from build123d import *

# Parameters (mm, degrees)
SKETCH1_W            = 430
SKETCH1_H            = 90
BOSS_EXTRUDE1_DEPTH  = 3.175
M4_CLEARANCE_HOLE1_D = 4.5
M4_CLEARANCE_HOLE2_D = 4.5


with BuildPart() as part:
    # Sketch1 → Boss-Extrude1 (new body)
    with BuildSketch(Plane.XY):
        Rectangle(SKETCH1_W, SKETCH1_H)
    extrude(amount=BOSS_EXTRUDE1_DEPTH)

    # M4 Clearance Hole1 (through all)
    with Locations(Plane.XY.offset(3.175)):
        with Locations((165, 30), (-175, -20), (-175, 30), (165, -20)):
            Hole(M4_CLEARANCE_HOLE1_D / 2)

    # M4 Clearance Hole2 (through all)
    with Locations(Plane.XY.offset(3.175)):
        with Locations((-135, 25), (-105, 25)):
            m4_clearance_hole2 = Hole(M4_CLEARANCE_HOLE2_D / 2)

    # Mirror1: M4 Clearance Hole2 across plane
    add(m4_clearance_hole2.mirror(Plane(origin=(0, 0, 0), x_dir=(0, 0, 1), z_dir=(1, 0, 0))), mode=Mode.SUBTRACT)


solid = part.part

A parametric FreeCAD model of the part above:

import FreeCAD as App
import Part
import Sketcher
from FreeCAD import Vector


def add_polygon(sketch, points):
    """Adds a closed chain of lines whose ends are joined by coincident constraints."""
    first, n = sketch.GeometryCount, len(points)
    for a, b in zip(points, points[1:] + points[:1]):
        sketch.addGeometry(Part.LineSegment(App.Vector(*a, 0), App.Vector(*b, 0)), False)
    for i in range(n):
        sketch.addConstraint(Sketcher.Constraint("Coincident", first + i, 2, first + (i + 1) % n, 1))

doc = App.newDocument("Part")
body = doc.addObject("PartDesign::Body", "Body")

sketch1 = body.newObject("Sketcher::SketchObject", "Sketch")
sketch1.AttachmentSupport = (doc.getObject("XY_Plane"), [""])
sketch1.MapMode = "FlatFace"
add_polygon(sketch1, [(-215, 45), (-215, -45), (215, -45), (215, 45)])
sketch1.addConstraint([
    Sketcher.Constraint("Vertical", 0),
    Sketcher.Constraint("Horizontal", 1),
    Sketcher.Constraint("Vertical", 2),
    Sketcher.Constraint("Horizontal", 3),
    Sketcher.Constraint("Symmetric", 0, 2, 2, 2, -1, 1),
    Sketcher.Constraint("DistanceX", 1, 1, 1, 2, 430.0),
    Sketcher.Constraint("DistanceY", 0, 2, 0, 1, 90.0),
])
pad1 = body.newObject("PartDesign::Pad", "Pad")
pad1.Profile = sketch1
pad1.Length = 3.175

sketch2 = body.newObject("Sketcher::SketchObject", "Sketch001")
sketch2.AttachmentSupport = (doc.getObject("XY_Plane"), [""])
sketch2.MapMode = "FlatFace"
sketch2.AttachmentOffset = App.Placement(Vector(0, 0, 3.175), App.Rotation())
sketch2.addGeometry([
    Part.Circle(Vector(165, 30, 0), Vector(0, 0, 1), 2.2),
    Part.Circle(Vector(-175, -20, 0), Vector(0, 0, 1), 2.2),
    Part.Circle(Vector(-175, 30, 0), Vector(0, 0, 1), 2.2),
    Part.Circle(Vector(165, -20, 0), Vector(0, 0, 1), 2.2),
], False)
sketch2.addConstraint([
    Sketcher.Constraint("Equal", 0, 1),
    Sketcher.Constraint("Equal", 1, 2),
    Sketcher.Constraint("Equal", 2, 3),
    Sketcher.Constraint("Horizontal", 0, 3, 2, 3),
    Sketcher.Constraint("Horizontal", 1, 3, 3, 3),
    Sketcher.Constraint("Vertical", 1, 3, 2, 3),
    Sketcher.Constraint("Vertical", 0, 3, 3, 3),
    Sketcher.Constraint("Diameter", 0, 4.5),
    Sketcher.Constraint("DistanceX", -1, 1, 0, 3, 165.0),
    Sketcher.Constraint("DistanceY", -1, 1, 0, 3, 30.0),
    Sketcher.Constraint("DistanceX", 1, 3, -1, 1, 175.0),
    Sketcher.Constraint("DistanceY", 1, 3, -1, 1, 20.0),
])
doc.recompute()
hole = body.newObject("PartDesign::Hole", "Hole")
hole.Profile = sketch2
hole.ThreadType = "None"
hole.Diameter = 4.5
hole.DepthType = "ThroughAll"

sketch3 = body.newObject("Sketcher::SketchObject", "Sketch002")
sketch3.AttachmentSupport = (doc.getObject("XY_Plane"), [""])
sketch3.MapMode = "FlatFace"
sketch3.AttachmentOffset = App.Placement(Vector(0, 0, 3.175), App.Rotation())
sketch3.addGeometry([
    Part.Circle(Vector(-135, 25, 0), Vector(0, 0, 1), 2.2),
    Part.Circle(Vector(-105, 25, 0), Vector(0, 0, 1), 2.2),
], False)
sketch3.addConstraint([
    Sketcher.Constraint("Equal", 0, 1),
    Sketcher.Constraint("Horizontal", 0, 3, 1, 3),
    Sketcher.Constraint("Diameter", 0, 4.5),
    Sketcher.Constraint("DistanceX", 0, 3, -1, 1, 135.0),
    Sketcher.Constraint("DistanceY", -1, 1, 0, 3, 25.0),
    Sketcher.Constraint("DistanceX", 1, 3, -1, 1, 105.0),
])
doc.recompute()
hole2 = body.newObject("PartDesign::Hole", "Hole001")
hole2.Profile = sketch3
hole2.ThreadType = "None"
hole2.Diameter = 4.5
hole2.DepthType = "ThroughAll"
doc.recompute()

mirrored = body.newObject("PartDesign::Mirrored", "Mirrored")
mirrored.Originals = [hole2]
mirrored.MirrorPlane = (doc.getObject("YZ_Plane"), [""])
body.Tip = mirrored

doc.recompute()
